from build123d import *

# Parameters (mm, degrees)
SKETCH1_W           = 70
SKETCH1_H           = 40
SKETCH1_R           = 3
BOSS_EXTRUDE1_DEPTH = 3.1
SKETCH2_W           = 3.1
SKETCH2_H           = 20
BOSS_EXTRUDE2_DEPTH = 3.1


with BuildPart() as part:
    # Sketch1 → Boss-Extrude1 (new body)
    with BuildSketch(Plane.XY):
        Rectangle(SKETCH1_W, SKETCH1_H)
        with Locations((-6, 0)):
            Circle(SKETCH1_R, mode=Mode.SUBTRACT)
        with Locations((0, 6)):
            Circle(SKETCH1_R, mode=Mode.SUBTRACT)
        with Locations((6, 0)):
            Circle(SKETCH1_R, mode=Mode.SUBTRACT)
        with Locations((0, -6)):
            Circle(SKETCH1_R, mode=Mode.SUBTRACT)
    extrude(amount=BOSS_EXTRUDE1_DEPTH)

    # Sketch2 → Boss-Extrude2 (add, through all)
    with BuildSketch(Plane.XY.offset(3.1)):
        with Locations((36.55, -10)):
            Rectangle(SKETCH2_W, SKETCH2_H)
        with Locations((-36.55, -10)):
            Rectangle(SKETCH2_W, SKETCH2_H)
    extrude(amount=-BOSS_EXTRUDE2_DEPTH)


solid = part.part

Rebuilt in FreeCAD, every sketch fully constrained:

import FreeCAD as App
import Part
import Sketcher
Q = App.Units.Quantity


def add_polygon(sketch, points):
    """Adds a closed chain of lines whose ends are joined by coincident constraints."""
    first, n = sketch.GeometryCount, len(points)
    for a, b in zip(points, points[1:] + points[:1]):
        sketch.addGeometry(Part.LineSegment(App.Vector(*a, 0), App.Vector(*b, 0)), False)
    for i in range(n):
        sketch.addConstraint(Sketcher.Constraint("Coincident", first + i, 2, first + (i + 1) % n, 1))

doc = App.newDocument("Part")
body = doc.addObject("PartDesign::Body", "Body")

# Sketch on XY plane
sketch1 = body.newObject("Sketcher::SketchObject", "Sketch")
sketch1.AttachmentSupport = (doc.getObject("XY_Plane"), [""])
sketch1.MapMode = "FlatFace"
add_polygon(sketch1, [(-35, 20), (-35, -20), (35, -20), (35, 20)])  # lines 0-3
sketch1.addGeometry(Part.Circle(App.Vector(0, -6, 0), App.Vector(0, 0, 1), 3), False)  # 4
sketch1.addGeometry(Part.Circle(App.Vector(-6, 0, 0), App.Vector(0, 0, 1), 3), False)  # 5
sketch1.addGeometry(Part.Circle(App.Vector(6, 0, 0), App.Vector(0, 0, 1), 3), False)  # 6
sketch1.addGeometry(Part.Circle(App.Vector(0, 6, 0), App.Vector(0, 0, 1), 3), False)  # 7
sketch1.addConstraint([
    Sketcher.Constraint("Vertical", 0),
    Sketcher.Constraint("Horizontal", 1),
    Sketcher.Constraint("Vertical", 2),
    Sketcher.Constraint("Horizontal", 3),
    Sketcher.Constraint("Equal", 4, 5),
    Sketcher.Constraint("Equal", 5, 6),
    Sketcher.Constraint("Equal", 6, 7),
    Sketcher.Constraint("Symmetric", 5, 3, 6, 3, -1, 1),
    Sketcher.Constraint("Symmetric", 4, 3, 7, 3, -1, 1),
    Sketcher.Constraint("Symmetric", 0, 2, 2, 2, -1, 1),
    Sketcher.Constraint("PointOnObject", 4, 3, -2),
    Sketcher.Constraint("PointOnObject", 5, 3, -1),
    Sketcher.Constraint("Diameter", 4, Q("6 mm")),
    Sketcher.Constraint("DistanceX", 1, 1, 1, 2, Q("70 mm")),
    Sketcher.Constraint("DistanceY", 0, 2, 0, 1, Q("40 mm")),
    Sketcher.Constraint("DistanceY", 4, 3, -1, 1, Q("6 mm")),
    Sketcher.Constraint("DistanceX", 5, 3, -1, 1, Q("6 mm")),
])
pad1 = body.newObject("PartDesign::Pad", "Pad")
pad1.Profile = sketch1
pad1.Length = 3.1

# Sketch on XY plane
sketch2 = body.newObject("Sketcher::SketchObject", "Sketch001")
sketch2.AttachmentSupport = (doc.getObject("XY_Plane"), [""])
sketch2.MapMode = "FlatFace"
sketch2.AttachmentOffset = App.Placement(App.Vector(0, 0, 3.1), App.Rotation())
add_polygon(sketch2, [(35, 0), (35, -20), (38.1, -20), (38.1, 0)])  # lines 0-3
add_polygon(sketch2, [(-38.1, 0), (-38.1, -20), (-35, -20), (-35, 0)])  # lines 4-7
sketch2.addConstraint([
    Sketcher.Constraint("Vertical", 0),
    Sketcher.Constraint("Horizontal", 1),
    Sketcher.Constraint("Vertical", 2),
    Sketcher.Constraint("Horizontal", 3),
    Sketcher.Constraint("Vertical", 4),
    Sketcher.Constraint("Horizontal", 5),
    Sketcher.Constraint("Vertical", 6),
    Sketcher.Constraint("Horizontal", 7),
    Sketcher.Constraint("Symmetric", 3, 2, 6, 2, -1, 1),
    Sketcher.Constraint("Symmetric", 1, 2, 4, 2, -2),
    Sketcher.Constraint("PointOnObject", 2, 2, -1),
    Sketcher.Constraint("DistanceY", 0, 2, 0, 1, Q("20 mm")),
    Sketcher.Constraint("DistanceX", 1, 1, 1, 2, Q("3.1 mm")),
    Sketcher.Constraint("DistanceX", -1, 1, 0, 2, Q("35 mm")),
])
pad2 = body.newObject("PartDesign::Pad", "Pad001")
pad2.Profile = sketch2
pad2.Type = "UpToLast"
pad2.Reversed = True

doc.recompute()
